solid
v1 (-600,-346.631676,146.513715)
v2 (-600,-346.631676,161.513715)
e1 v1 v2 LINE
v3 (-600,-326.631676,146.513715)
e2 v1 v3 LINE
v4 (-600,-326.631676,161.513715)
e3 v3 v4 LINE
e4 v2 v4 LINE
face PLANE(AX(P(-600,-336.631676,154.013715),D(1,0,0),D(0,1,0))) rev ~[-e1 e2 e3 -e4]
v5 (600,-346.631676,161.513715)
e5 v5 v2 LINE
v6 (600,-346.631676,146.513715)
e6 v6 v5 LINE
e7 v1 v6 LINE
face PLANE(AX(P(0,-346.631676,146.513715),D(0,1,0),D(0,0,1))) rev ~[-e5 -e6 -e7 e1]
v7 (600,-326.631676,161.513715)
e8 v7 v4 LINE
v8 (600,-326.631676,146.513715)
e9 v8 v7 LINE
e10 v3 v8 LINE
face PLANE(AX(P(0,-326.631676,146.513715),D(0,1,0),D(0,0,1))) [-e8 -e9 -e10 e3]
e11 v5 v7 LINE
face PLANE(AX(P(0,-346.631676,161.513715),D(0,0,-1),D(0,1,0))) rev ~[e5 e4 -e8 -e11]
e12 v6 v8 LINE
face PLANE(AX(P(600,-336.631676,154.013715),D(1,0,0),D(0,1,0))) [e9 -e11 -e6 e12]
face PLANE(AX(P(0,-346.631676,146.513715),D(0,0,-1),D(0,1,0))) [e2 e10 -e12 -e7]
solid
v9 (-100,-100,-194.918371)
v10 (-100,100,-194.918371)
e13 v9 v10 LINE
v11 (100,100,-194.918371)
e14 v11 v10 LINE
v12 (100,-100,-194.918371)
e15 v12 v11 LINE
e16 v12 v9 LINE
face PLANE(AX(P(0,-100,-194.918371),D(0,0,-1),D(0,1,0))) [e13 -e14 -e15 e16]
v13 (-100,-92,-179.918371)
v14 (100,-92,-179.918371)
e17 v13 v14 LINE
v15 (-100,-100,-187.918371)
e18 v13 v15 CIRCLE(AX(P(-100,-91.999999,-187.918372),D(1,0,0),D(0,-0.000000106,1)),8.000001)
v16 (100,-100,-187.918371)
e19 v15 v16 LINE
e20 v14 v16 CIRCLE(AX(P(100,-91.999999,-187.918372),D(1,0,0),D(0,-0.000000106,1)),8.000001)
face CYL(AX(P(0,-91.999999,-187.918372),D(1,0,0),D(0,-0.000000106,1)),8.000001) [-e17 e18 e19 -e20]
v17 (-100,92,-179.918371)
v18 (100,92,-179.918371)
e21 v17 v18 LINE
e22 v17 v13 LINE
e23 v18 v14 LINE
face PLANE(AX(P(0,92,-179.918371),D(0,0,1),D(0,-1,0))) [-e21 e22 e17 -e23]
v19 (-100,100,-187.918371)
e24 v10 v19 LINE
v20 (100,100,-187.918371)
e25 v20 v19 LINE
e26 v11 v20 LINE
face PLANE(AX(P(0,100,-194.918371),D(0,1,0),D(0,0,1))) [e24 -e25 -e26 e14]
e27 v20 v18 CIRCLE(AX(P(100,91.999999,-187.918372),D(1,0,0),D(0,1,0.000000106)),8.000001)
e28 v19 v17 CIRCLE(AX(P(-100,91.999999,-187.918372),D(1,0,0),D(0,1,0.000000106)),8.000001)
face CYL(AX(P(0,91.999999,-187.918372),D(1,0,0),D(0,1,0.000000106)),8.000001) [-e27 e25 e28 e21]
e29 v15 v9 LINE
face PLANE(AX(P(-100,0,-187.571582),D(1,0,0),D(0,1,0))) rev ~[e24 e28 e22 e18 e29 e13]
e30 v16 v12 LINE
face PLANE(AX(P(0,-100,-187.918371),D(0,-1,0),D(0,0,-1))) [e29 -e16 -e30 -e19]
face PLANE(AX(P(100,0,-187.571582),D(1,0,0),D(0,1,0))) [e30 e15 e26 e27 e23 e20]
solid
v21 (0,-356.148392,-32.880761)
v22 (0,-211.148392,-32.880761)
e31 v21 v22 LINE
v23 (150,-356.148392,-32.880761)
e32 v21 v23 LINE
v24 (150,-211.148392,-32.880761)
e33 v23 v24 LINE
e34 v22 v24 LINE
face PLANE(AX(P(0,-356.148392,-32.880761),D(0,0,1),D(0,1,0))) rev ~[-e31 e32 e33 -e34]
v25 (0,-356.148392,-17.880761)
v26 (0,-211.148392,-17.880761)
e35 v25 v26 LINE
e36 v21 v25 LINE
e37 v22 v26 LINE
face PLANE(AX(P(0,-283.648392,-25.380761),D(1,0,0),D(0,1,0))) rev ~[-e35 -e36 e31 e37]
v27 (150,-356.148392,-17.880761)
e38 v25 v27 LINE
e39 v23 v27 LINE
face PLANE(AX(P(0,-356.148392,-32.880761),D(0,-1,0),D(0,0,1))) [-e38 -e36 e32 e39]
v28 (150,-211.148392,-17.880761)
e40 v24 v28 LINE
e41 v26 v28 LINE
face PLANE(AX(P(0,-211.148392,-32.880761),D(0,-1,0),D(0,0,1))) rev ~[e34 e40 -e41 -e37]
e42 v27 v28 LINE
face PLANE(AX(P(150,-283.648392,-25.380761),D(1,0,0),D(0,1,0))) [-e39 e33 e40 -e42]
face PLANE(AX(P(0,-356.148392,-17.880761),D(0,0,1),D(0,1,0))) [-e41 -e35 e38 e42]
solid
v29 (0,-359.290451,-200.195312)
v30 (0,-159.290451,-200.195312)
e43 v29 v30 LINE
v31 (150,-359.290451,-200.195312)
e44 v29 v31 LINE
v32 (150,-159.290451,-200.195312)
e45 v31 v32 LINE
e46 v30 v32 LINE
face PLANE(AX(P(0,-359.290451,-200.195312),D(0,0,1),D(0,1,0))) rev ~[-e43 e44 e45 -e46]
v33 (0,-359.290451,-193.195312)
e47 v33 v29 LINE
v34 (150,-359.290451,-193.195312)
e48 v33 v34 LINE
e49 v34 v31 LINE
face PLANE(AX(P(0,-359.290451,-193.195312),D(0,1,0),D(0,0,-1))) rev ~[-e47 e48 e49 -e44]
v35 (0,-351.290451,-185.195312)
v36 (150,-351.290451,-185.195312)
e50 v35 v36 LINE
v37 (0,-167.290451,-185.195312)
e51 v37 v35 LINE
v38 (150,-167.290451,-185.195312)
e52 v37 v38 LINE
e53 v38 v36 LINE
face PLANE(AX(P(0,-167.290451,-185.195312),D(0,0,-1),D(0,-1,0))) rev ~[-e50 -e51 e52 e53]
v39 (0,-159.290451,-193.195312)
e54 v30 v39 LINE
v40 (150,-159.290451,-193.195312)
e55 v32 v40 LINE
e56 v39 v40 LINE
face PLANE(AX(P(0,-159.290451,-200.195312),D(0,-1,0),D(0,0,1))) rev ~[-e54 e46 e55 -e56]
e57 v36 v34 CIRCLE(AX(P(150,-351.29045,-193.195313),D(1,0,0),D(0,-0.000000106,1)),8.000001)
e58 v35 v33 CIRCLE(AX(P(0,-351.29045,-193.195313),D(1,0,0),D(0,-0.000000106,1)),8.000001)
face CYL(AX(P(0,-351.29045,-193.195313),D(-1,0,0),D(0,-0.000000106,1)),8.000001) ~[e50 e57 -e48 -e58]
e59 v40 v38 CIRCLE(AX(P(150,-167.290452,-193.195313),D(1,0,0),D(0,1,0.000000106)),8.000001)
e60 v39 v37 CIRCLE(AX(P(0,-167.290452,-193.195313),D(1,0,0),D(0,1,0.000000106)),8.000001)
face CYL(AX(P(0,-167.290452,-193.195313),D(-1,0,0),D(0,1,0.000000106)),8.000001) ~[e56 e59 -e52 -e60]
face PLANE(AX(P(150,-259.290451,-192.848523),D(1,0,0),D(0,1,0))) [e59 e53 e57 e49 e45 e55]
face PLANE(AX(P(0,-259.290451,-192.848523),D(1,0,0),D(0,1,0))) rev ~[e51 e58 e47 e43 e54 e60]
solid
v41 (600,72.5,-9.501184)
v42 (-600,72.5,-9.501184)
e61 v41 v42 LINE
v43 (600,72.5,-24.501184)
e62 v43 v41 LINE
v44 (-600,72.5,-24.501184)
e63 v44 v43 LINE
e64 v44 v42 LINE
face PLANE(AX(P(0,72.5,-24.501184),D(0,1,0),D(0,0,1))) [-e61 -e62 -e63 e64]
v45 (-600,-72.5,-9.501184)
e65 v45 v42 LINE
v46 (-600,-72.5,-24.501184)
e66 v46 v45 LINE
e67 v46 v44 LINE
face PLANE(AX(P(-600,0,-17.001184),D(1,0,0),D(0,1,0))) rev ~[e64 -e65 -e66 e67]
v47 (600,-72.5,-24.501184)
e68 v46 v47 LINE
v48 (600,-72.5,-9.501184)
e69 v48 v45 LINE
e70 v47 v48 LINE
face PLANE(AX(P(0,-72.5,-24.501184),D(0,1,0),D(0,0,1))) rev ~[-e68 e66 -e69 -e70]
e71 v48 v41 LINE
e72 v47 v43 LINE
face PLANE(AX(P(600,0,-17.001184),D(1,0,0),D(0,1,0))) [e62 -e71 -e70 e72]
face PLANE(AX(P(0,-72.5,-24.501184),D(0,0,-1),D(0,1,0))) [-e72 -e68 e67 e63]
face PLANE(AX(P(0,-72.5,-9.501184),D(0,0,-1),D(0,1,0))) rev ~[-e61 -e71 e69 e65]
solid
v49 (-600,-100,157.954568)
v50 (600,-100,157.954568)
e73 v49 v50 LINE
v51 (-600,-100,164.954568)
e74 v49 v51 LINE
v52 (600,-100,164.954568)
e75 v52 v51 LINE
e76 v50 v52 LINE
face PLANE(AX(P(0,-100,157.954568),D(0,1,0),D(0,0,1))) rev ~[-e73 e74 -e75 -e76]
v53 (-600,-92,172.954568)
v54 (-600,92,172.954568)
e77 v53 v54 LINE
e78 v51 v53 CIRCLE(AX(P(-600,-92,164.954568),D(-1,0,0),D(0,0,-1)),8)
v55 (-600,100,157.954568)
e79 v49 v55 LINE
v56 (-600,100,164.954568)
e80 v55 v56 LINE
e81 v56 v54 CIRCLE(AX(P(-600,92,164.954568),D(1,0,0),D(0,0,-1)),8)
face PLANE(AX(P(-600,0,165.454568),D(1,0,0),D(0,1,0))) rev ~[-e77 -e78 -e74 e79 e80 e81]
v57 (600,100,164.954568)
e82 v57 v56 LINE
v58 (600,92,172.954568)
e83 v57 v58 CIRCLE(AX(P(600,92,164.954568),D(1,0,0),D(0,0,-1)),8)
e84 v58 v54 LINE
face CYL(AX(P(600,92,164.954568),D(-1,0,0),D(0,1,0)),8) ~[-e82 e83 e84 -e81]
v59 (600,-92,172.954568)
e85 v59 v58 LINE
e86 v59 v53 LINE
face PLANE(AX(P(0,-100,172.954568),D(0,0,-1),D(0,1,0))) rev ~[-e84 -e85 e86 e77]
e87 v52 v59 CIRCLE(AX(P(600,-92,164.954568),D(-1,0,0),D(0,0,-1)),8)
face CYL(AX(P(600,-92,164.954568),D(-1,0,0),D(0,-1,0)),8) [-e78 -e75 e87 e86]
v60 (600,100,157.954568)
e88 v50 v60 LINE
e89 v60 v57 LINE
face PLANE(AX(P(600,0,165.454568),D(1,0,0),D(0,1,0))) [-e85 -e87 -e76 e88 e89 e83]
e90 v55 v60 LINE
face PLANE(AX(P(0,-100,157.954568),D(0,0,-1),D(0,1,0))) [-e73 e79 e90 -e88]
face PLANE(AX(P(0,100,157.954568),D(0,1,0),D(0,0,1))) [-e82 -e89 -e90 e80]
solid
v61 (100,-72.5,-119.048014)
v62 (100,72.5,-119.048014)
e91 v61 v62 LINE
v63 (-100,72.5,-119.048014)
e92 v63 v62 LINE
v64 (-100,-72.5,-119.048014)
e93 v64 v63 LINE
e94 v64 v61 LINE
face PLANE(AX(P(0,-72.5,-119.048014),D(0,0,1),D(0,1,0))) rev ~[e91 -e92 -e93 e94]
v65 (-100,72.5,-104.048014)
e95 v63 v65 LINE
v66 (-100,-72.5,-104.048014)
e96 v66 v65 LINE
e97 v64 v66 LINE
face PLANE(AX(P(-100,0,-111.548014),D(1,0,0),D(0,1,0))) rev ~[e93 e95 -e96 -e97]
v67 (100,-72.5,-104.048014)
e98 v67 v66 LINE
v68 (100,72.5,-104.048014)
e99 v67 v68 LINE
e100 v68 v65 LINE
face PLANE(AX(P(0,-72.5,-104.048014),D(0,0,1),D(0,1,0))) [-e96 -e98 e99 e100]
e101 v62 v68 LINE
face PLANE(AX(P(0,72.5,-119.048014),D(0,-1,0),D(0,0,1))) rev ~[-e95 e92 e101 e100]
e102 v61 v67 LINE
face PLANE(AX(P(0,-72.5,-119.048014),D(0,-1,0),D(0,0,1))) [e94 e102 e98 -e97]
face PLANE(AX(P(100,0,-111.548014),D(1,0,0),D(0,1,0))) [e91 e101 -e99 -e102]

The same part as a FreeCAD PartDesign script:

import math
import FreeCAD as App
import Part
import Sketcher
Q = App.Units.Quantity


def edges_at(feature, points):
    """Names of the edges that pass closest to the given points."""
    edges = feature.Shape.Edges
    near = lambda p: min(range(len(edges)), key=lambda i: edges[i].distToShape(Part.Vertex(*p))[0])
    return sorted({f"Edge{near(p) + 1}" for p in points})


def add_polygon(sketch, points):
    """Adds a closed chain of lines whose ends are joined by coincident constraints."""
    first, n = sketch.GeometryCount, len(points)
    for a, b in zip(points, points[1:] + points[:1]):
        sketch.addGeometry(Part.LineSegment(App.Vector(*a, 0), App.Vector(*b, 0)), False)
    for i in range(n):
        sketch.addConstraint(Sketcher.Constraint("Coincident", first + i, 2, first + (i + 1) % n, 1))

doc = App.newDocument("Part")
body = doc.addObject("PartDesign::Body", "Body")

sketch1 = doc.addObject("Sketcher::SketchObject", "Sketch")
body.addObject(sketch1)
sketch1.AttachmentSupport = (doc.YZ_Plane, [""])
sketch1.MapMode = "FlatFace"
add_polygon(sketch1, [(-100, 173), (-100, 158), (100, 158), (100, 173)])
sketch1.addConstraint([
    Sketcher.Constraint("Vertical", 0),
    Sketcher.Constraint("Horizontal", 1),
    Sketcher.Constraint("Vertical", 2),
    Sketcher.Constraint("Horizontal", 3),
    Sketcher.Constraint("DistanceX", 1, 1, 1, 2, Q("200 mm")),
    Sketcher.Constraint("DistanceY", 0, 2, 0, 1, Q("15 mm")),
    Sketcher.Constraint("DistanceX", 0, 2, -1, 1, Q("100 mm")),
    Sketcher.Constraint("DistanceY", -1, 1, 0, 2, Q("157.954568 mm")),
])
pad1 = doc.addObject("PartDesign::Pad", "Pad")
body.addObject(pad1)
pad1.Profile = sketch1
pad1.Length = 1200
pad1.Midplane = True
doc.recompute()

fillet = doc.addObject("PartDesign::Fillet", "Fillet")
body.addObject(fillet)
fillet.Base = (pad1, edges_at(pad1, [(0, -100, 172.955), (0, 100, 172.955)]))
fillet.Radius = 8
body2 = doc.addObject("PartDesign::Body", "Body001")

sketch2 = doc.addObject("Sketcher::SketchObject", "Sketch001")
body2.addObject(sketch2)
sketch2.AttachmentSupport = (doc.getObject("YZ_Plane001"), [""])
sketch2.MapMode = "FlatFace"
add_polygon(sketch2, [(-72, -10), (-72, -25), (72, -25), (72, -10)])
sketch2.addConstraint([
    Sketcher.Constraint("Vertical", 0),
    Sketcher.Constraint("Horizontal", 1),
    Sketcher.Constraint("Vertical", 2),
    Sketcher.Constraint("Horizontal", 3),
    Sketcher.Constraint("DistanceX", 1, 1, 1, 2, Q("145 mm")),
    Sketcher.Constraint("DistanceY", 0, 2, 0, 1, Q("15 mm")),
    Sketcher.Constraint("DistanceX", 0, 2, -1, 1, Q("72.5 mm")),
    Sketcher.Constraint("DistanceY", 0, 2, -1, 1, Q("24.501184 mm")),
])
pad2 = doc.addObject("PartDesign::Pad", "Pad001")
body2.addObject(pad2)
pad2.Profile = sketch2
pad2.Length = 1200
pad2.Midplane = True
body3 = doc.addObject("PartDesign::Body", "Body002")
body3.AllowCompound = True

sketch3 = doc.addObject("Sketcher::SketchObject", "Sketch002")
body3.addObject(sketch3)
sketch3.AttachmentSupport = (doc.getObject("YZ_Plane002"), [""])
sketch3.MapMode = "FlatFace"
add_polygon(sketch3, [(-72, -104), (-72, -119), (72, -119), (72, -104)])
sketch3.addGeometry(Part.ArcOfCircle(Part.Circle(App.Vector(92, -188, 0), App.Vector(0, 0, 1), 8), math.radians(0), math.radians(90)), False)
sketch3.addGeometry(Part.LineSegment(App.Vector(92, -180, 0), App.Vector(-92, -180, 0)), False)
sketch3.addGeometry(Part.ArcOfCircle(Part.Circle(App.Vector(-92, -188, 0), App.Vector(0, 0, 1), 8), math.radians(90), math.radians(180)), False)
sketch3.addGeometry(Part.LineSegment(App.Vector(-100, -188, 0), App.Vector(-100, -195, 0)), False)
sketch3.addGeometry(Part.LineSegment(App.Vector(-100, -195, 0), App.Vector(100, -195, 0)), False)
sketch3.addGeometry(Part.LineSegment(App.Vector(100, -195, 0), App.Vector(100, -188, 0)), False)
sketch3.addConstraint([
    Sketcher.Constraint("Tangent", 4, 2, 5, 1),
    Sketcher.Constraint("Tangent", 5, 2, 6, 1),
    Sketcher.Constraint("Tangent", 6, 2, 7, 1),
    Sketcher.Constraint("Coincident", 7, 2, 8, 1),
    Sketcher.Constraint("Coincident", 8, 2, 9, 1),
    Sketcher.Constraint("Tangent", 9, 2, 4, 1),
    Sketcher.Constraint("Vertical", 0),
    Sketcher.Constraint("Horizontal", 1),
    Sketcher.Constraint("Vertical", 2),
    Sketcher.Constraint("Horizontal", 3),
    Sketcher.Constraint("Horizontal", 5),
    Sketcher.Constraint("Vertical", 7),
    Sketcher.Constraint("Horizontal", 8),
    Sketcher.Constraint("Vertical", 9),
    Sketcher.Constraint("Equal", 4, 6),
    Sketcher.Constraint("Radius", 4, Q("8.000001 mm")),
    Sketcher.Constraint("DistanceX", 1, 1, 1, 2, Q("145 mm")),
    Sketcher.Constraint("DistanceX", 5, 2, 5, 1, Q("184 mm")),
    Sketcher.Constraint("DistanceY", 0, 2, 0, 1, Q("15 mm")),
    Sketcher.Constraint("DistanceY", 7, 2, 7, 1, Q("7 mm")),
    Sketcher.Constraint("DistanceX", -1, 1, 4, 3, Q("91.999999 mm")),
    Sketcher.Constraint("DistanceX", 0, 2, -1, 1, Q("72.5 mm")),
    Sketcher.Constraint("DistanceY", 4, 3, -1, 1, Q("187.918372 mm")),
    Sketcher.Constraint("DistanceY", 0, 2, -1, 1, Q("119.048014 mm")),
])
pad3 = doc.addObject("PartDesign::Pad", "Pad002")
body3.addObject(pad3)
pad3.Profile = sketch3
pad3.Length = 200
pad3.Midplane = True
body4 = doc.addObject("PartDesign::Body", "Body003")
body4.AllowCompound = True

sketch4 = doc.addObject("Sketcher::SketchObject", "Sketch003")
body4.addObject(sketch4)
sketch4.AttachmentSupport = (doc.getObject("YZ_Plane003"), [""])
sketch4.MapMode = "FlatFace"
add_polygon(sketch4, [(-356, -18), (-356, -33), (-211, -33), (-211, -18)])
sketch4.addGeometry(Part.LineSegment(App.Vector(-359, -193, 0), App.Vector(-359, -200, 0)), False)
sketch4.addGeometry(Part.LineSegment(App.Vector(-359, -200, 0), App.Vector(-159, -200, 0)), False)
sketch4.addGeometry(Part.LineSegment(App.Vector(-159, -200, 0), App.Vector(-159, -193, 0)), False)
sketch4.addGeometry(Part.ArcOfCircle(Part.Circle(App.Vector(-167, -193, 0), App.Vector(0, 0, 1), 8), math.radians(0), math.radians(90)), False)
sketch4.addGeometry(Part.LineSegment(App.Vector(-167, -185, 0), App.Vector(-351, -185, 0)), False)
sketch4.addGeometry(Part.ArcOfCircle(Part.Circle(App.Vector(-351, -193, 0), App.Vector(0, 0, 1), 8), math.radians(90), math.radians(180)), False)
sketch4.addConstraint([
    Sketcher.Constraint("Coincident", 4, 2, 5, 1),
    Sketcher.Constraint("Coincident", 5, 2, 6, 1),
    Sketcher.Constraint("Tangent", 6, 2, 7, 1),
    Sketcher.Constraint("Tangent", 7, 2, 8, 1),
    Sketcher.Constraint("Tangent", 8, 2, 9, 1),
    Sketcher.Constraint("Tangent", 9, 2, 4, 1),
    Sketcher.Constraint("Vertical", 0),
    Sketcher.Constraint("Horizontal", 1),
    Sketcher.Constraint("Vertical", 2),
    Sketcher.Constraint("Horizontal", 3),
    Sketcher.Constraint("Vertical", 4),
    Sketcher.Constraint("Horizontal", 5),
    Sketcher.Constraint("Vertical", 6),
    Sketcher.Constraint("Horizontal", 8),
    Sketcher.Constraint("Equal", 7, 9),
    Sketcher.Constraint("Radius", 7, Q("8.000001 mm")),
    Sketcher.Constraint("DistanceX", 1, 1, 1, 2, Q("145 mm")),
    Sketcher.Constraint("DistanceX", 5, 1, 5, 2, Q("200 mm")),
    Sketcher.Constraint("DistanceY", 0, 2, 0, 1, Q("15 mm")),
    Sketcher.Constraint("DistanceY", 4, 2, 4, 1, Q("7 mm")),
    Sketcher.Constraint("DistanceX", 7, 3, -1, 1, Q("167.290452 mm")),
    Sketcher.Constraint("DistanceX", 0, 2, -1, 1, Q("356.148392 mm")),
    Sketcher.Constraint("DistanceY", 0, 2, -1, 1, Q("32.880761 mm")),
    Sketcher.Constraint("DistanceY", 4, 2, -1, 1, Q("200.195312 mm")),
])
pad4 = doc.addObject("PartDesign::Pad", "Pad003")
body4.addObject(pad4)
pad4.Profile = sketch4
pad4.Length = 150
body5 = doc.addObject("PartDesign::Body", "Body004")

sketch5 = doc.addObject("Sketcher::SketchObject", "Sketch004")
body5.addObject(sketch5)
sketch5.AttachmentSupport = (doc.getObject("YZ_Plane004"), [""])
sketch5.MapMode = "FlatFace"
add_polygon(sketch5, [(-347, 162), (-347, 147), (-327, 147), (-327, 162)])
sketch5.addConstraint([
    Sketcher.Constraint("Vertical", 0),
    Sketcher.Constraint("Horizontal", 1),
    Sketcher.Constraint("Vertical", 2),
    Sketcher.Constraint("Horizontal", 3),
    Sketcher.Constraint("DistanceX", 1, 1, 1, 2, Q("20 mm")),
    Sketcher.Constraint("DistanceY", 0, 2, 0, 1, Q("15 mm")),
    Sketcher.Constraint("DistanceX", 0, 2, -1, 1, Q("346.631676 mm")),
    Sketcher.Constraint("DistanceY", -1, 1, 0, 2, Q("146.513715 mm")),
])
pad5 = doc.addObject("PartDesign::Pad", "Pad004")
body5.addObject(pad5)
pad5.Profile = sketch5
pad5.Length = 1200
pad5.Midplane = True

doc.recompute()
